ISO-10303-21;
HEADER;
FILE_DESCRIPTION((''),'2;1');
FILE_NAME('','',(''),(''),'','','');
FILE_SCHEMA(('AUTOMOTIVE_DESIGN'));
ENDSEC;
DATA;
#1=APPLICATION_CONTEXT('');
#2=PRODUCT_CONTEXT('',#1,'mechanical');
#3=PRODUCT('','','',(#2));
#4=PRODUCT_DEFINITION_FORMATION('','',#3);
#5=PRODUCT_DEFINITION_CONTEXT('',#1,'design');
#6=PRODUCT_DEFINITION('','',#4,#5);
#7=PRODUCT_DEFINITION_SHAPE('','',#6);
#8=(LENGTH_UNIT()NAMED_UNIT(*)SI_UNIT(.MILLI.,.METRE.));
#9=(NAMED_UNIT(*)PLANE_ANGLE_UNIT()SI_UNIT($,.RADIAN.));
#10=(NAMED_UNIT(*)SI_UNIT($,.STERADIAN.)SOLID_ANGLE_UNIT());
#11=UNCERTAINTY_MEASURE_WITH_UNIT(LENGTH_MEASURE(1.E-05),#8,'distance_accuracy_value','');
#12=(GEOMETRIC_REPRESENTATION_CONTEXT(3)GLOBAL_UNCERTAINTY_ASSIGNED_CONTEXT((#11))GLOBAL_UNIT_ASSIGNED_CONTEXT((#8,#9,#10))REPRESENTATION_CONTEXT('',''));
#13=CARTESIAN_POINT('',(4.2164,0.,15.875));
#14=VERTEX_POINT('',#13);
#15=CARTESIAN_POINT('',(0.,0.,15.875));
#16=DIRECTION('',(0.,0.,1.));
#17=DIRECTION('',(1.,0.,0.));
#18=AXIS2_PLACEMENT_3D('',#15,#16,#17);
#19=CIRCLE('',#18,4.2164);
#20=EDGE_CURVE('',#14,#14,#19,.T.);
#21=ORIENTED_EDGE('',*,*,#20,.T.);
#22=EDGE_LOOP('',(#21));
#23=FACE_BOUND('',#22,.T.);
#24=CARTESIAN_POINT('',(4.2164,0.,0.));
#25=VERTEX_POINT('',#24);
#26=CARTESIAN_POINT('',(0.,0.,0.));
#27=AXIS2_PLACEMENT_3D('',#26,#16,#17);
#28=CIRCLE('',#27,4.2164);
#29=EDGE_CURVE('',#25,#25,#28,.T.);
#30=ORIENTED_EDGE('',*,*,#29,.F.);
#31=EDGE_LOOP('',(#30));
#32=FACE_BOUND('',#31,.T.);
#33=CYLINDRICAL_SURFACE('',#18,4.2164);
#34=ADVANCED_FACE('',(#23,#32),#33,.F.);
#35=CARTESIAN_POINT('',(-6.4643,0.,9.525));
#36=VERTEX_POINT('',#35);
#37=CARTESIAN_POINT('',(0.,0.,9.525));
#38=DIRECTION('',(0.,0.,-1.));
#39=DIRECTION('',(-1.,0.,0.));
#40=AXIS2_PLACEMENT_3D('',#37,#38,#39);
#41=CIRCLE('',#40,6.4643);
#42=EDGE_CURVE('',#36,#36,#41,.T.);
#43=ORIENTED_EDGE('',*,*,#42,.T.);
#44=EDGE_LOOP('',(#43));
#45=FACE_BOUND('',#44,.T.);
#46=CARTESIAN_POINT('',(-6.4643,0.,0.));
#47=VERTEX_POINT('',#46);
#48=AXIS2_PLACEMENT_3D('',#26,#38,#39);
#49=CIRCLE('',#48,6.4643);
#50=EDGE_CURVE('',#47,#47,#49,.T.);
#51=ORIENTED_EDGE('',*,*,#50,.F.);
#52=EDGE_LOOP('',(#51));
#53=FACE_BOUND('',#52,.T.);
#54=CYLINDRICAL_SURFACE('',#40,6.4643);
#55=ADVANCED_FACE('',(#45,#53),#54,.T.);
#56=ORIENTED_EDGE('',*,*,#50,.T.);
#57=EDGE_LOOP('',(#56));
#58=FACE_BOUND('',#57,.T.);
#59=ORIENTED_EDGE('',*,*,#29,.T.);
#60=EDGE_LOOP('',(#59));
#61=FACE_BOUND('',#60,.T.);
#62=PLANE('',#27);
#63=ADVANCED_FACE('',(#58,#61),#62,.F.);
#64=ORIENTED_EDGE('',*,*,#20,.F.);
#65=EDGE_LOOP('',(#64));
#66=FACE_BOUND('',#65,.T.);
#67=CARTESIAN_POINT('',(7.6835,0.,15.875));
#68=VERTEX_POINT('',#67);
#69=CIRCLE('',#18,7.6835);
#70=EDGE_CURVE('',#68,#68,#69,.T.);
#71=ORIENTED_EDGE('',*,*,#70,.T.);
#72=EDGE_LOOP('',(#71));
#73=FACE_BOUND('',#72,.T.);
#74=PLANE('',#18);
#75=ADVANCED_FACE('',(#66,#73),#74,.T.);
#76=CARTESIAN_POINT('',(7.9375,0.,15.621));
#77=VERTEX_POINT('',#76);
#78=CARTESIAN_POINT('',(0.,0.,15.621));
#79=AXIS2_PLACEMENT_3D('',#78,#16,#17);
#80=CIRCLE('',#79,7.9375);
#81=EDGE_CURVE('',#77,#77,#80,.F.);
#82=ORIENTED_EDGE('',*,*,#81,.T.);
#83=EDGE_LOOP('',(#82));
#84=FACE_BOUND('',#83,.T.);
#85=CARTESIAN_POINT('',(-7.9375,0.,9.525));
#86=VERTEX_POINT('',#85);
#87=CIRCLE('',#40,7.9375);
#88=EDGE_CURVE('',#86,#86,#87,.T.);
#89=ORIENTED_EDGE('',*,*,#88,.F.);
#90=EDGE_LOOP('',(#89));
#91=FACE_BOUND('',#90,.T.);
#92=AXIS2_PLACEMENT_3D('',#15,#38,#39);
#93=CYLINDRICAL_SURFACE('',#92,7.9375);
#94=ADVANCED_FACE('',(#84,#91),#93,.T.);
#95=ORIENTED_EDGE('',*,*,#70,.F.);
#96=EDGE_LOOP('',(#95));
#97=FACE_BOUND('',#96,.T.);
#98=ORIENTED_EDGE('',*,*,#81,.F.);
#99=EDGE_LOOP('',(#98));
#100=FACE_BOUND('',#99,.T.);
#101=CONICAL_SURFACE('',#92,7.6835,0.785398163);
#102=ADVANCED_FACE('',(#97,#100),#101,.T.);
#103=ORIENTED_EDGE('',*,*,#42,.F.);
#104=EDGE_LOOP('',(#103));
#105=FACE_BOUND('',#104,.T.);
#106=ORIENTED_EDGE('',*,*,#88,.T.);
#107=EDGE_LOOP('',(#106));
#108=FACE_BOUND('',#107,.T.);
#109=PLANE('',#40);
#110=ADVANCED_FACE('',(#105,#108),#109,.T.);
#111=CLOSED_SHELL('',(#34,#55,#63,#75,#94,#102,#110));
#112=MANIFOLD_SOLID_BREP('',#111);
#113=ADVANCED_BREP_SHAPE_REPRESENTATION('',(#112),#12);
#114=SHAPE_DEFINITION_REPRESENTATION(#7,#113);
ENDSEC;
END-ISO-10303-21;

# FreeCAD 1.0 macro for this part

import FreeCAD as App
import Part
import Sketcher
Q = App.Units.Quantity


def edges_at(feature, points):
    """Names of the edges that pass closest to the given points."""
    edges = feature.Shape.Edges
    near = lambda p: min(range(len(edges)), key=lambda i: edges[i].distToShape(Part.Vertex(*p))[0])
    return sorted({f"Edge{near(p) + 1}" for p in points})

doc = App.newDocument("Part")
params = doc.addObject("Spreadsheet::Sheet", "Params")
for row, (alias, value) in enumerate([
    ("sketch1_diameter", "0.625 in"),
    ("pad1_length", "0.625 in"),
    ("chamfer_size", "0.01 in"),
    ("sketch2_diameter", "0.509 in"),
    ("pocket1_length", "0.375 in"),
    ("sketch3_diameter", "0.332 in"),
    ("hole_diameter", "0.332 in"),
], start=1):
    params.set(f"A{row}", alias)
    params.set(f"B{row}", "=" + value)
    params.setAlias(f"B{row}", alias)

body = doc.addObject("PartDesign::Body", "Body")

# Sketch on XY plane
sketch1 = body.newObject("Sketcher::SketchObject", "Sketch")
sketch1.AttachmentSupport = (doc.getObject("XY_Plane"), [""])
sketch1.MapMode = "FlatFace"
sketch1.addGeometry(Part.Circle(App.Vector(0, 0, 0), App.Vector(0, 0, 1), 7.9375), False)
sketch1.addConstraint([
    Sketcher.Constraint("Coincident", 0, 3, -1, 1),
    Sketcher.Constraint("Diameter", 0, Q("0.625 in")),
])
sketch1.setExpression("Constraints[1]", "Params.sketch1_diameter")
pad1 = body.newObject("PartDesign::Pad", "Pad")
pad1.Profile = sketch1
pad1.setExpression("Length", "Params.pad1_length")
doc.recompute()

chamfer = body.newObject("PartDesign::Chamfer", "Chamfer")
chamfer.Base = (pad1, edges_at(pad1, [(-7.938, 0, 15.875)]))
chamfer.setExpression("Size", "Params.chamfer_size")

# Sketch on XY plane
sketch2 = body.newObject("Sketcher::SketchObject", "Sketch001")
sketch2.AttachmentSupport = (doc.getObject("XY_Plane"), [""])
sketch2.MapMode = "FlatFace"
sketch2.addGeometry([
    Part.LineSegment(App.Vector(11.688, 11.688, 0), App.Vector(11.688, -11.688, 0)),  # 0
    Part.LineSegment(App.Vector(11.688, -11.688, 0), App.Vector(-11.688, -11.688, 0)),  # 1
    Part.LineSegment(App.Vector(-11.688, -11.688, 0), App.Vector(-11.688, 11.688, 0)),  # 2
    Part.LineSegment(App.Vector(-11.688, 11.688, 0), App.Vector(11.688, 11.688, 0)),  # 3
    Part.Circle(App.Vector(0, 0, 0), App.Vector(0, 0, 1), 6.4643),  # 4
], False)
sketch2.addConstraint([
    Sketcher.Constraint("Coincident", 0, 2, 1, 1),
    Sketcher.Constraint("Coincident", 1, 2, 2, 1),
    Sketcher.Constraint("Coincident", 2, 2, 3, 1),
    Sketcher.Constraint("Coincident", 3, 2, 0, 1),
    Sketcher.Constraint("Vertical", 0),
    Sketcher.Constraint("Horizontal", 1),
    Sketcher.Constraint("Vertical", 2),
    Sketcher.Constraint("Horizontal", 3),
    Sketcher.Constraint("Coincident", 4, 3, -1, 1),
    Sketcher.Constraint("Symmetric", 0, 2, 2, 2, -1, 1),
    Sketcher.Constraint("Equal", 3, 0),
    Sketcher.Constraint("Diameter", 4, Q("0.509 in")),
    Sketcher.Constraint("DistanceX", 1, 2, 1, 1, 23.376),
])
sketch2.setExpression("Constraints[11]", "Params.sketch2_diameter")
pocket1 = body.newObject("PartDesign::Pocket", "Pocket")
pocket1.Profile = sketch2
pocket1.setExpression("Length", "Params.pocket1_length")
pocket1.Reversed = True

# Sketch on XY plane
sketch3 = body.newObject("Sketcher::SketchObject", "Sketch002")
sketch3.AttachmentSupport = (doc.getObject("XY_Plane"), [""])
sketch3.MapMode = "FlatFace"
sketch3.AttachmentOffset = App.Placement(App.Vector(0, 0, 0.625 * 25.4), App.Rotation())
sketch3.addGeometry(Part.Circle(App.Vector(0, 0, 0), App.Vector(0, 0, 1), 4.2164), False)
sketch3.addConstraint([
    Sketcher.Constraint("Coincident", 0, 3, -1, 1),
    Sketcher.Constraint("Diameter", 0, Q("0.332 in")),
])
sketch3.setExpression("Constraints[1]", "Params.sketch3_diameter")
doc.recompute()
hole = body.newObject("PartDesign::Hole", "Hole")
hole.Profile = sketch3
hole.ThreadType = "None"
hole.setExpression("Diameter", "Params.hole_diameter")
hole.DepthType = "ThroughAll"

doc.recompute()
